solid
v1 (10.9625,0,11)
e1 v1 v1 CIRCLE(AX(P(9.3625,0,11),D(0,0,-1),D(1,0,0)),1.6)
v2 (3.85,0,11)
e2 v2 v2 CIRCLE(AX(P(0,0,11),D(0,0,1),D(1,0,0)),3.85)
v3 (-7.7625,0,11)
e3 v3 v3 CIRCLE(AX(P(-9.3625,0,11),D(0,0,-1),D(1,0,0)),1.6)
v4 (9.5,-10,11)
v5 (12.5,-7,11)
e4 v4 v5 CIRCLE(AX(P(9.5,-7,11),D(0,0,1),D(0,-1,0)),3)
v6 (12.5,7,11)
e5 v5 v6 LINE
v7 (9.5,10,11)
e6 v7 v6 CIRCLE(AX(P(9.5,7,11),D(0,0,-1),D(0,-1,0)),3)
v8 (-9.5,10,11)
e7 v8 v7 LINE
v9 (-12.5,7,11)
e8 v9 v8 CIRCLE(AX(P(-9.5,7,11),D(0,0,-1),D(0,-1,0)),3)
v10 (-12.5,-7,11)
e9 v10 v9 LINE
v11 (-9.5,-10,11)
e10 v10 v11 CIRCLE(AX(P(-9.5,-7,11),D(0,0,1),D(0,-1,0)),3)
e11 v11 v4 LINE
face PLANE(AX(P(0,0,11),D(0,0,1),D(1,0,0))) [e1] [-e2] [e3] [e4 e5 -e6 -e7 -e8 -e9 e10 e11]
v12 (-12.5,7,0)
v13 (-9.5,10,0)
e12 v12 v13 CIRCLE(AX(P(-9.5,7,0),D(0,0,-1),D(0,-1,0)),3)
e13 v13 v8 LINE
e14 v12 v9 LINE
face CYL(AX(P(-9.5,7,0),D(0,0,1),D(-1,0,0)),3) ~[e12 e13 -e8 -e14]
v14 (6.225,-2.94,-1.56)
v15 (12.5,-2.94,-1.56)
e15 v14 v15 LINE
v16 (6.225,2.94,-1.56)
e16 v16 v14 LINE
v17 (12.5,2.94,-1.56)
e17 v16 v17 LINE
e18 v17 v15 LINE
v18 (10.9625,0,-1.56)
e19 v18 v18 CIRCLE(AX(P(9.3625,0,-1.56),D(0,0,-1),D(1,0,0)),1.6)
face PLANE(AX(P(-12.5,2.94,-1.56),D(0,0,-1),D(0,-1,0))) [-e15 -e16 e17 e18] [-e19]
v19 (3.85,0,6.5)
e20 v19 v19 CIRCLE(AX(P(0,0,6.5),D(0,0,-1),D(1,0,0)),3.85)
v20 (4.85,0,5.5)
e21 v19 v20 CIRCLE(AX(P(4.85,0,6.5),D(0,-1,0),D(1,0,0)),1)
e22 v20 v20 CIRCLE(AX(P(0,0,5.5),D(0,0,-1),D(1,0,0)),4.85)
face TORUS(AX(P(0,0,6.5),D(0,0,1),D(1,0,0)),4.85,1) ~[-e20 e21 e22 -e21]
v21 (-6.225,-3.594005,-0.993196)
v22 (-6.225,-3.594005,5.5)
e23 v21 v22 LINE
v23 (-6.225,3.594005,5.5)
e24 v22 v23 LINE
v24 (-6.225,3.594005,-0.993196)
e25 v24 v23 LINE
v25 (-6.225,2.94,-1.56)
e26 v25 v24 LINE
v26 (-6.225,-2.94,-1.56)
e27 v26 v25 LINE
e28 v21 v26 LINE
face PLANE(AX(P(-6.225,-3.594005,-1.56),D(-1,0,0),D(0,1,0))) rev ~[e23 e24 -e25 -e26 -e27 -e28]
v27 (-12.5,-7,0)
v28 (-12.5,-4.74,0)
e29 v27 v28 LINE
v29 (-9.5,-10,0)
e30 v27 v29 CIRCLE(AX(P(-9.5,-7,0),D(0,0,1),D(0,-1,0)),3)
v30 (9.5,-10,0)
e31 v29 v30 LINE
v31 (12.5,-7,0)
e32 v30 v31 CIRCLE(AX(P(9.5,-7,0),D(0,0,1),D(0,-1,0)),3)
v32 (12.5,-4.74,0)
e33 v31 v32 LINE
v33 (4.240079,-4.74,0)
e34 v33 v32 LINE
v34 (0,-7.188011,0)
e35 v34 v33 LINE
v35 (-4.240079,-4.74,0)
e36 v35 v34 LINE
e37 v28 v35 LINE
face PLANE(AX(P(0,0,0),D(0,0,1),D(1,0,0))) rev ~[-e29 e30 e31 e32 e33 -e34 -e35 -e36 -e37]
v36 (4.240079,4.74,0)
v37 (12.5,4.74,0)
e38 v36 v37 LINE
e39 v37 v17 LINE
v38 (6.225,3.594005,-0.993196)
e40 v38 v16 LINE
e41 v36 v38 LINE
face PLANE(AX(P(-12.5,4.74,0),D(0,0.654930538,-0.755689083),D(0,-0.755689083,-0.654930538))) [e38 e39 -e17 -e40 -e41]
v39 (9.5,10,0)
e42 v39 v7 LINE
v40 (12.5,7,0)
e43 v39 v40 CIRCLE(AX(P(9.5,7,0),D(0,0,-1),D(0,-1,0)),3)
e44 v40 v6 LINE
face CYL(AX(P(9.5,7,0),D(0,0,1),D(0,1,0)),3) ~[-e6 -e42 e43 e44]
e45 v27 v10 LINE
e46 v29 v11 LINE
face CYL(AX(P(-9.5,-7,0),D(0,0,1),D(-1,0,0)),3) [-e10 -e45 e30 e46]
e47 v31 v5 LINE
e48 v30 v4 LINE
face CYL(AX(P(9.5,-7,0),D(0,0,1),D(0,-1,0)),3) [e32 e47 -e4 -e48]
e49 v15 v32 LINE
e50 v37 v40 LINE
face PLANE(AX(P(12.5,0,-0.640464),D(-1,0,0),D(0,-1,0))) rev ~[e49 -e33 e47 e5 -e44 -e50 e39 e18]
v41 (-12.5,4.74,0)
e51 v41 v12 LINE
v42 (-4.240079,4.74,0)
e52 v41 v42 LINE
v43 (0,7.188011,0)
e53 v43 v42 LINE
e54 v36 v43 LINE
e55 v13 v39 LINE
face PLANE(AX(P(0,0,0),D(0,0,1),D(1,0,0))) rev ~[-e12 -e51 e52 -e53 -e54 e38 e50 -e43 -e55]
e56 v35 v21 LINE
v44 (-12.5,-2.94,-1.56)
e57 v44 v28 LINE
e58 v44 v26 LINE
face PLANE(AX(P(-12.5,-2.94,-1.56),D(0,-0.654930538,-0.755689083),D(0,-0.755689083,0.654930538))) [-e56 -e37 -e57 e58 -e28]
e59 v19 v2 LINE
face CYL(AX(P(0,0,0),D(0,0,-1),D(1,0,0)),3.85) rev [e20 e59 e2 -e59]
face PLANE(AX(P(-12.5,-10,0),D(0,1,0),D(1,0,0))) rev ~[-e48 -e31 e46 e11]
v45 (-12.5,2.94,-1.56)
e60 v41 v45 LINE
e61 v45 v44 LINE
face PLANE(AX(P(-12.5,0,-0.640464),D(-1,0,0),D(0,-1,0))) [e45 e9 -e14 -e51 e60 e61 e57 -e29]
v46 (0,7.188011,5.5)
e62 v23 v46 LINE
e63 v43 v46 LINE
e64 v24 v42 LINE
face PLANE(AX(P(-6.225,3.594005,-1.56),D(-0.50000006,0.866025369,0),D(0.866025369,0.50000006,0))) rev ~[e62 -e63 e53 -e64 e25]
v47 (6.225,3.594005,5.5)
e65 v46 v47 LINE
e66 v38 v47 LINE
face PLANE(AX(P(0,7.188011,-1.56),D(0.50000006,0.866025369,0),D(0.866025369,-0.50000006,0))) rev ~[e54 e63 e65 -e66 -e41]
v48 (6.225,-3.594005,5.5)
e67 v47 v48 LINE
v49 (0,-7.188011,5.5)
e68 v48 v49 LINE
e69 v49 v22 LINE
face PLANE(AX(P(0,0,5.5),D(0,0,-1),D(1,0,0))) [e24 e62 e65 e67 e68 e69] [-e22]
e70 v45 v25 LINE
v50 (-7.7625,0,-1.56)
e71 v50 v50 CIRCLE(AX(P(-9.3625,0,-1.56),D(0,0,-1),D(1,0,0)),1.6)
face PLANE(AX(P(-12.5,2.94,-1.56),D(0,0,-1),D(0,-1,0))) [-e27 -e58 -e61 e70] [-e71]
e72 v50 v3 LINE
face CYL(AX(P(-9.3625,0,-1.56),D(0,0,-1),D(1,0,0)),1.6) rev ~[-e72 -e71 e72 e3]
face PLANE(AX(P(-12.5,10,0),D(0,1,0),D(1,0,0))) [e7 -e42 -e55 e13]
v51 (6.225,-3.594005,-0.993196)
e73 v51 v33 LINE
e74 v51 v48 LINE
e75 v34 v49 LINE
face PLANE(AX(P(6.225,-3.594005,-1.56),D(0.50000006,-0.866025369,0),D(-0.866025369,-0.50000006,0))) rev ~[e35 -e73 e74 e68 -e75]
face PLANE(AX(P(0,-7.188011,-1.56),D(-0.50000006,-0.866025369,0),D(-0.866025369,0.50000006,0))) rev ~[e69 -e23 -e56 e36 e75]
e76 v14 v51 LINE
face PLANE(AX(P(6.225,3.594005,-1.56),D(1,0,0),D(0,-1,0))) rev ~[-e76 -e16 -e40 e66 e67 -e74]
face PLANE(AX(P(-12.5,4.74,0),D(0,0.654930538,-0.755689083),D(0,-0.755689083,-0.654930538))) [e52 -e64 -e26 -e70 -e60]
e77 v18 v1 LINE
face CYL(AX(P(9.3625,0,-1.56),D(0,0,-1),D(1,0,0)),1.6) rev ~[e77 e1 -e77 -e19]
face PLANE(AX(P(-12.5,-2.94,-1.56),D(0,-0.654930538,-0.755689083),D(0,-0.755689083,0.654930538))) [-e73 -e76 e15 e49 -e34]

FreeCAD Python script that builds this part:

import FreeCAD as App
import Part
import Sketcher

V = App.Vector
Q = App.Units.Quantity


def edges_at(feature, points):
    """Names of the edges that pass closest to the given points."""
    edges = feature.Shape.Edges
    near = lambda p: min(range(len(edges)), key=lambda i: edges[i].distToShape(Part.Vertex(*p))[0])
    return sorted({f"Edge{near(p) + 1}" for p in points})

doc = App.newDocument("Part")
body = doc.addObject("PartDesign::Body", "Body")

sketch1 = doc.addObject("Sketcher::SketchObject", "Sketch")
body.addObject(sketch1)
sketch1.AttachmentSupport = (doc.XY_Plane, [""])
sketch1.MapMode = "FlatFace"
sketch1.addGeometry([
    Part.LineSegment(V(-12.5, 10, 0), V(-12.5, -10, 0)),
    Part.LineSegment(V(-12.5, -10, 0), V(12.5, -10, 0)),
    Part.LineSegment(V(12.5, -10, 0), V(12.5, 10, 0)),
    Part.LineSegment(V(12.5, 10, 0), V(-12.5, 10, 0)),
    Part.Circle(V(0, 0, 0), V(0, 0, 1), 3.85),
], False)
sketch1.addConstraint([
    Sketcher.Constraint("Coincident", 0, 2, 1, 1),
    Sketcher.Constraint("Coincident", 1, 2, 2, 1),
    Sketcher.Constraint("Coincident", 2, 2, 3, 1),
    Sketcher.Constraint("Coincident", 3, 2, 0, 1),
    Sketcher.Constraint("Vertical", 0),
    Sketcher.Constraint("Horizontal", 1),
    Sketcher.Constraint("Vertical", 2),
    Sketcher.Constraint("Horizontal", 3),
    Sketcher.Constraint("Coincident", 4, 3, -1, 1),
    Sketcher.Constraint("Symmetric", 0, 2, 2, 2, -1, 1),
    Sketcher.Constraint("Diameter", 4, 7.7),
    Sketcher.Constraint("DistanceX", 1, 1, 1, 2, 25.0),
    Sketcher.Constraint("DistanceY", 0, 2, 0, 1, 20.0),
])
pad1 = doc.addObject("PartDesign::Pad", "Pad")
body.addObject(pad1)
pad1.Profile = sketch1
pad1.Length = 11

sketch2 = doc.addObject("Sketcher::SketchObject", "Sketch001")
body.addObject(sketch2)
sketch2.AttachmentSupport = (doc.YZ_Plane, [""])
sketch2.MapMode = "FlatFace"
sketch2.AttachmentOffset = App.Placement(V(0, 0, -12.5), App.Rotation())
sketch2.addGeometry([
    Part.LineSegment(V(4.74, 0, 0), V(2.94, -1.56, 0)),
    Part.LineSegment(V(2.94, -1.56, 0), V(-2.94, -1.56, 0)),
    Part.LineSegment(V(-2.94, -1.56, 0), V(-4.74, 0, 0)),
    Part.LineSegment(V(-4.74, 0, 0), V(4.74, 0, 0)),
], False)
sketch2.addConstraint([
    Sketcher.Constraint("Coincident", 0, 2, 1, 1),
    Sketcher.Constraint("Coincident", 1, 2, 2, 1),
    Sketcher.Constraint("Coincident", 2, 2, 3, 1),
    Sketcher.Constraint("Coincident", 3, 2, 0, 1),
    Sketcher.Constraint("Horizontal", 1),
    Sketcher.Constraint("Horizontal", 3),
    Sketcher.Constraint("Symmetric", 2, 2, 3, 2, -1, 1),
    Sketcher.Constraint("Equal", 0, 2),
    Sketcher.Constraint("DistanceX", 1, 2, 1, 1, 5.88),
    Sketcher.Constraint("DistanceX", 3, 1, 3, 2, 9.48),
    Sketcher.Constraint("DistanceY", 0, 2, -1, 1, 1.56),
])
pad2 = doc.addObject("PartDesign::Pad", "Pad001")
body.addObject(pad2)
pad2.Profile = sketch2
pad2.Length = 25

sketch3 = doc.addObject("Sketcher::SketchObject", "Sketch002")
body.addObject(sketch3)
sketch3.AttachmentSupport = (doc.XY_Plane, [""])
sketch3.MapMode = "FlatFace"
sketch3.AttachmentOffset = App.Placement(V(0, 0, -1.56), App.Rotation())
sketch3.addGeometry([
    Part.LineSegment(V(0, 7.188011, 0), V(6.225, 3.594005, 0)),
    Part.LineSegment(V(6.225, 3.594005, 0), V(6.225, -3.594005, 0)),
    Part.LineSegment(V(6.225, -3.594005, 0), V(0, -7.188011, 0)),
    Part.LineSegment(V(0, -7.188011, 0), V(-6.225, -3.594005, 0)),
    Part.LineSegment(V(-6.225, -3.594005, 0), V(-6.225, 3.594005, 0)),
    Part.LineSegment(V(-6.225, 3.594005, 0), V(0, 7.188011, 0)),
], False)
sketch3.addConstraint([
    Sketcher.Constraint("Coincident", 0, 2, 1, 1),
    Sketcher.Constraint("Coincident", 1, 2, 2, 1),
    Sketcher.Constraint("Coincident", 2, 2, 3, 1),
    Sketcher.Constraint("Coincident", 3, 2, 4, 1),
    Sketcher.Constraint("Coincident", 4, 2, 5, 1),
    Sketcher.Constraint("Coincident", 5, 2, 0, 1),
    Sketcher.Constraint("Vertical", 1),
    Sketcher.Constraint("Vertical", 4),
    Sketcher.Constraint("Symmetric", 0, 2, 3, 2, -1, 1),
    Sketcher.Constraint("Symmetric", 2, 2, 5, 2, -1, 1),
    Sketcher.Constraint("PointOnObject", 2, 2, -2),
    Sketcher.Constraint("Parallel", 2, 5),
    Sketcher.Constraint("Horizontal", 1, 2, 3, 2),
    Sketcher.Constraint("Angle", 0, Q("-30.000004 deg")),
    Sketcher.Constraint("DistanceX", 3, 2, 1, 2, 12.45),
    Sketcher.Constraint("DistanceY", 1, 2, 1, 1, 7.18801),
])
pocket1 = doc.addObject("PartDesign::Pocket", "Pocket")
body.addObject(pocket1)
pocket1.Profile = sketch3
pocket1.Length = 7.06
pocket1.Reversed = True

sketch4 = doc.addObject("Sketcher::SketchObject", "Sketch003")
body.addObject(sketch4)
sketch4.AttachmentSupport = (doc.XY_Plane, [""])
sketch4.MapMode = "FlatFace"
sketch4.AttachmentOffset = App.Placement(V(0, 0, -1.56), App.Rotation())
sketch4.addGeometry([
    Part.Circle(V(-9.3625, 0, 0), V(0, 0, 1), 1.6),
    Part.Circle(V(9.3625, 0, 0), V(0, 0, 1), 1.6),
], False)
sketch4.addConstraint([
    Sketcher.Constraint("Equal", 0, 1),
    Sketcher.Constraint("Symmetric", 0, 3, 1, 3, -1, 1),
    Sketcher.Constraint("PointOnObject", 0, 3, -1),
    Sketcher.Constraint("Diameter", 0, 3.2),
    Sketcher.Constraint("DistanceX", 0, 3, 1, 3, 18.725),
])
pocket2 = doc.addObject("PartDesign::Pocket", "Pocket001")
body.addObject(pocket2)
pocket2.Profile = sketch4
pocket2.Type = "ThroughAll"
pocket2.Reversed = True
doc.recompute()

fillet = doc.addObject("PartDesign::Fillet", "Fillet")
body.addObject(fillet)
fillet.Base = (pocket2, edges_at(pocket2, [
    (12.5, -10, 5.5),
    (12.5, 10, 5.5),
    (-12.5, 10, 5.5),
    (-12.5, -10, 5.5),
]))
fillet.Radius = 3
doc.recompute()

fillet2 = doc.addObject("PartDesign::Fillet", "Fillet001")
body.addObject(fillet2)
fillet2.Base = (fillet, edges_at(fillet, [(-3.85, 0, 5.5)]))
fillet2.Radius = 1

doc.recompute()
